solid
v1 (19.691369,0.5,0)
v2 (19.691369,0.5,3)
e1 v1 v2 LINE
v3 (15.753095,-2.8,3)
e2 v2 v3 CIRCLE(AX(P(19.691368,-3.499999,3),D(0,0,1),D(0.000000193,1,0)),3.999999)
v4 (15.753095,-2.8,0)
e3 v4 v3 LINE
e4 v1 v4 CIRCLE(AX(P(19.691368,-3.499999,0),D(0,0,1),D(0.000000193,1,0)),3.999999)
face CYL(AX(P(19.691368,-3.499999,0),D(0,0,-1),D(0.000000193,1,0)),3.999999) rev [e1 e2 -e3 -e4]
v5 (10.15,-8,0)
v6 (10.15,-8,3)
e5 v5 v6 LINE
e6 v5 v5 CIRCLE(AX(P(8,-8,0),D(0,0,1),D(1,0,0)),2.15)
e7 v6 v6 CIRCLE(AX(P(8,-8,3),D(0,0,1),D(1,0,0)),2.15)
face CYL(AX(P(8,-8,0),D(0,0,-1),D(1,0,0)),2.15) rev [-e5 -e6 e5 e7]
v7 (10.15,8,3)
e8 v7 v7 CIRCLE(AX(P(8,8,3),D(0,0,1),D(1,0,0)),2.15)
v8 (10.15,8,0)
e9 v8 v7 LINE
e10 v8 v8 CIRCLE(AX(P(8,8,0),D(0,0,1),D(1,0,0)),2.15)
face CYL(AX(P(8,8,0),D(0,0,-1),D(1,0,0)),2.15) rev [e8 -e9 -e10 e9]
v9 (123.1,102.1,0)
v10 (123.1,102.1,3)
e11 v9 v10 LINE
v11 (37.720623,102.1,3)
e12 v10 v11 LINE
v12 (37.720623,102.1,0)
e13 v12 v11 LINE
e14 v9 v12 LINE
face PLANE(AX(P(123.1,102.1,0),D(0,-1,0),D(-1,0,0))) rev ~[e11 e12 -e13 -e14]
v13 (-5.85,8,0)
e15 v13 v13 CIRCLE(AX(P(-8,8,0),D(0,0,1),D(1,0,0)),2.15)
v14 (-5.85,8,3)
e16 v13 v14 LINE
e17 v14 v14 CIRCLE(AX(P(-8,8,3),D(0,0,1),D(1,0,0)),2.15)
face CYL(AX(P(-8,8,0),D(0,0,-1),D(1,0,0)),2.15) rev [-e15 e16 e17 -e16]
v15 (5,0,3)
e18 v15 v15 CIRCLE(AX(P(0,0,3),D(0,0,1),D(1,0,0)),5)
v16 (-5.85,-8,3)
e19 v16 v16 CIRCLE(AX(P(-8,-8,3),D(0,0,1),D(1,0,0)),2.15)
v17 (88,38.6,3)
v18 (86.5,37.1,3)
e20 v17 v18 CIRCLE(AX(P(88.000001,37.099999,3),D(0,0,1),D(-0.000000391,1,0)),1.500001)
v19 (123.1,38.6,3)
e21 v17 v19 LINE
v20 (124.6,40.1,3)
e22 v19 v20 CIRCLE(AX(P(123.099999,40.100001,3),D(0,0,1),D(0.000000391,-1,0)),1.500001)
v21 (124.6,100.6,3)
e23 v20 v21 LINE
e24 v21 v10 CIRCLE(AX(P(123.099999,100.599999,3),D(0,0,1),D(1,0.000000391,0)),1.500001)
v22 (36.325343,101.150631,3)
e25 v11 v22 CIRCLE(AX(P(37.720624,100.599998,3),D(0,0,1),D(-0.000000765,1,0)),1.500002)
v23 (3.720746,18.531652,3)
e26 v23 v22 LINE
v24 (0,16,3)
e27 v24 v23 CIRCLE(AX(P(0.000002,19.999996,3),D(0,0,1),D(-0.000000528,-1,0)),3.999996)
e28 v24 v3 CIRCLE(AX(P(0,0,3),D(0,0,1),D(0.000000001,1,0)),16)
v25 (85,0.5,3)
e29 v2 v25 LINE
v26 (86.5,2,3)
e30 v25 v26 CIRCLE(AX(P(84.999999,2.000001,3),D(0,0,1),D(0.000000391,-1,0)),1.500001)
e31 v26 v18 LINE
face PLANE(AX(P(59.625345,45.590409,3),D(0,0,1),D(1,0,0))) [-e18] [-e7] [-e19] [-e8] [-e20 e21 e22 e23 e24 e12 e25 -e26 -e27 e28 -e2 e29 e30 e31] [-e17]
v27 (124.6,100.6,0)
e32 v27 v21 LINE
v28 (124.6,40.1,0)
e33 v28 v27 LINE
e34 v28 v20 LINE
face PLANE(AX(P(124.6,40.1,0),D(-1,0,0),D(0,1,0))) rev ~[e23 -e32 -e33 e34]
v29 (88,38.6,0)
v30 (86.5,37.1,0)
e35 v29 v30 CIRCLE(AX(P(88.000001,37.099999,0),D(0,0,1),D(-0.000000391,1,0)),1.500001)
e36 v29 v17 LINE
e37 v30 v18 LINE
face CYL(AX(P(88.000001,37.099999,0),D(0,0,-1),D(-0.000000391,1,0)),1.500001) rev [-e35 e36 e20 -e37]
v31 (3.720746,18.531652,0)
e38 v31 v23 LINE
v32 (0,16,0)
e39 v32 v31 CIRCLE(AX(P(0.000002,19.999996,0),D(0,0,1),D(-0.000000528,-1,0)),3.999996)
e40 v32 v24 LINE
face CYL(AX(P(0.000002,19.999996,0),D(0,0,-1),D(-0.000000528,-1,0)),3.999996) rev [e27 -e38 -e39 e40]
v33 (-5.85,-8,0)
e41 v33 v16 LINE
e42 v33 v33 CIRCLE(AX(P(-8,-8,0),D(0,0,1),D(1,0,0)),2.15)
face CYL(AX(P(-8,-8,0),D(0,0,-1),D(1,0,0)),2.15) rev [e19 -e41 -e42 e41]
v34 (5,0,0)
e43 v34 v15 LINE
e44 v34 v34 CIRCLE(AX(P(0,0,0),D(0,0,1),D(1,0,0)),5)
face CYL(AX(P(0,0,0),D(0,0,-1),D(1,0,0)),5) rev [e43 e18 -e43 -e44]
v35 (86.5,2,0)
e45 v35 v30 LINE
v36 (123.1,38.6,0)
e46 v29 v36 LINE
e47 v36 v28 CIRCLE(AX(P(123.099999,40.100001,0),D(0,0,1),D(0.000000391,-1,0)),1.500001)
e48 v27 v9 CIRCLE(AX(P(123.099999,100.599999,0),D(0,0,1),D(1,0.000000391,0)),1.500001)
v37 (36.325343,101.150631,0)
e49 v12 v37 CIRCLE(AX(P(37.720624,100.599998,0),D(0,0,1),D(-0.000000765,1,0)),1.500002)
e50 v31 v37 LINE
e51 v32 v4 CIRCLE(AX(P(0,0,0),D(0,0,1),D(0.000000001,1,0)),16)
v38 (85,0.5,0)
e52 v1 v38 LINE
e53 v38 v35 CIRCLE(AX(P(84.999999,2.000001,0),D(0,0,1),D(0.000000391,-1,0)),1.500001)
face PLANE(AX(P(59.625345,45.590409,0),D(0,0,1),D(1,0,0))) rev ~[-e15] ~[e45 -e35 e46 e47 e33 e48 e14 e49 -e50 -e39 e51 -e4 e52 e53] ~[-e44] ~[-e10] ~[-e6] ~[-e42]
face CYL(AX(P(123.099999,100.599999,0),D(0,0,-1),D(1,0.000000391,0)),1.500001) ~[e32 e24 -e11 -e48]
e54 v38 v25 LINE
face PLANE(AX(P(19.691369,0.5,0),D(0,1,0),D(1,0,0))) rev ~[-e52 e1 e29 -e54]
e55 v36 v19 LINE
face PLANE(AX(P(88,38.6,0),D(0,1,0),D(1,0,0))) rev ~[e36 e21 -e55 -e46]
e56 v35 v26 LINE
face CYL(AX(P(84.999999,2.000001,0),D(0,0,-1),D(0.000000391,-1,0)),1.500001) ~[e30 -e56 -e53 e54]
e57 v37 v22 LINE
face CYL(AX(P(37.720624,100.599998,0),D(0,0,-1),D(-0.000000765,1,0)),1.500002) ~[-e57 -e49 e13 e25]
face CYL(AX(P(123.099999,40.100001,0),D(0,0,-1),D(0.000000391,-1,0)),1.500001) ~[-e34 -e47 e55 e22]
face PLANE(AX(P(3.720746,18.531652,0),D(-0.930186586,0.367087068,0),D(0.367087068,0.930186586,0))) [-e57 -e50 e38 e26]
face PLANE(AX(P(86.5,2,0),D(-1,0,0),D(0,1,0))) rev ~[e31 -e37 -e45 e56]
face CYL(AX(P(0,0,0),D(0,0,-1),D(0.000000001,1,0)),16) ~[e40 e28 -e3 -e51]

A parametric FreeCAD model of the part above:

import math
import FreeCAD as App
import Part
import Sketcher

V = App.Vector
Q = App.Units.Quantity

doc = App.newDocument("Part")
body = doc.addObject("PartDesign::Body", "Body")

# Sketch on XY plane
sketch1 = body.newObject("Sketcher::SketchObject", "Sketch")
sketch1.AttachmentSupport = (doc.getObject("XY_Plane"), [""])
sketch1.MapMode = "FlatFace"
sketch1.addGeometry([
    Part.ArcOfCircle(Part.Circle(V(84.999999, 2.000001, 0), V(0, 0, 1), 1.500001), math.radians(-89.999978), math.radians(-0.000022)),  # 0
    Part.LineSegment(V(86.5, 2, 0), V(86.5, 37.1, 0)),  # 1
    Part.ArcOfCircle(Part.Circle(V(88.000001, 37.099999, 0), V(0, 0, 1), 1.500001), math.radians(90.000022), math.radians(179.999978)),  # 2
    Part.LineSegment(V(88, 38.6, 0), V(123.1, 38.6, 0)),  # 3
    Part.ArcOfCircle(Part.Circle(V(123.099999, 40.100001, 0), V(0, 0, 1), 1.500001), math.radians(-89.999978), math.radians(-0.000022)),  # 4
    Part.LineSegment(V(124.6, 40.1, 0), V(124.6, 100.6, 0)),  # 5
    Part.ArcOfCircle(Part.Circle(V(123.099999, 100.599999, 0), V(0, 0, 1), 1.500001), math.radians(0.000022), math.radians(89.999978)),  # 6
    Part.LineSegment(V(123.1, 102.1, 0), V(37.720623, 102.1, 0)),  # 7
    Part.ArcOfCircle(Part.Circle(V(37.720624, 100.599998, 0), V(0, 0, 1), 1.500002), math.radians(90.000044), math.radians(158.463848)),  # 8
    Part.LineSegment(V(36.325343, 101.150631, 0), V(3.720746, 18.531652, 0)),  # 9
    Part.ArcOfCircle(Part.Circle(V(0.000002, 19.999996, 0), V(0, 0, 1), 3.999996), math.radians(-90.00003), math.radians(-21.53604)),  # 10
    Part.ArcOfCircle(Part.Circle(V(0, 0, 0), V(0, 0, 1), 16), math.radians(90), math.radians(349.921342)),  # 11
    Part.ArcOfCircle(Part.Circle(V(19.691368, -3.499999, 0), V(0, 0, 1), 3.999999), math.radians(89.999989), math.radians(169.921349)),  # 12
    Part.LineSegment(V(19.691369, 0.5, 0), V(85, 0.5, 0)),  # 13
    Part.Circle(V(-8, -8, 0), V(0, 0, 1), 2.15),  # 14
    Part.Circle(V(8, -8, 0), V(0, 0, 1), 2.15),  # 15
    Part.Circle(V(-8, 8, 0), V(0, 0, 1), 2.15),  # 16
    Part.Circle(V(0, 0, 0), V(0, 0, 1), 5),  # 17
    Part.Circle(V(8, 8, 0), V(0, 0, 1), 2.15),  # 18
], False)
sketch1.addConstraint([
    Sketcher.Constraint("Tangent", 0, 2, 1, 1),
    Sketcher.Constraint("Tangent", 1, 2, 2, 2),
    Sketcher.Constraint("Tangent", 2, 1, 3, 1),
    Sketcher.Constraint("Tangent", 3, 2, 4, 1),
    Sketcher.Constraint("Tangent", 4, 2, 5, 1),
    Sketcher.Constraint("Tangent", 5, 2, 6, 1),
    Sketcher.Constraint("Tangent", 6, 2, 7, 1),
    Sketcher.Constraint("Tangent", 7, 2, 8, 1),
    Sketcher.Constraint("Tangent", 8, 2, 9, 1),
    Sketcher.Constraint("Tangent", 9, 2, 10, 2),
    Sketcher.Constraint("Tangent", 10, 1, 11, 1),
    Sketcher.Constraint("Tangent", 11, 2, 12, 2),
    Sketcher.Constraint("Tangent", 12, 1, 13, 1),
    Sketcher.Constraint("Tangent", 13, 2, 0, 1),
    Sketcher.Constraint("Vertical", 1),
    Sketcher.Constraint("Horizontal", 3),
    Sketcher.Constraint("Vertical", 5),
    Sketcher.Constraint("Horizontal", 7),
    Sketcher.Constraint("Horizontal", 13),
    Sketcher.Constraint("Coincident", 11, 3, -1, 1),
    Sketcher.Constraint("Coincident", 17, 3, -1, 1),
    Sketcher.Constraint("Equal", 0, 2),
    Sketcher.Constraint("Equal", 2, 4),
    Sketcher.Constraint("Equal", 4, 6),
    Sketcher.Constraint("Equal", 6, 8),
    Sketcher.Constraint("Equal", 14, 15),
    Sketcher.Constraint("Equal", 15, 16),
    Sketcher.Constraint("Equal", 16, 18),
    Sketcher.Constraint("Symmetric", 15, 3, 16, 3, -1, 1),
    Sketcher.Constraint("Symmetric", 14, 3, 18, 3, -1, 1),
    Sketcher.Constraint("Symmetric", 14, 3, 15, 3, -2),
    Sketcher.Constraint("PointOnObject", 10, 1, -2),
    Sketcher.Constraint("Equal", 3, 1),
    Sketcher.Constraint("Diameter", 17, Q("10 mm")),
    Sketcher.Constraint("Radius", 11, Q("16 mm")),
    Sketcher.Constraint("Radius", 12, Q("3.999999 mm")),
    Sketcher.Constraint("Diameter", 14, Q("4.3 mm")),
    Sketcher.Constraint("Radius", 0, Q("1.500001 mm")),
    Sketcher.Constraint("DistanceX", 3, 1, 3, 2, Q("35.1 mm")),
    Sketcher.Constraint("DistanceY", 5, 1, 5, 2, Q("60.5 mm")),
    Sketcher.Constraint("DistanceX", -1, 1, 0, 3, Q("84.999999 mm")),
    Sketcher.Constraint("DistanceY", -1, 1, 0, 3, Q("2.000001 mm")),
    Sketcher.Constraint("DistanceX", 14, 3, -1, 1, Q("8 mm")),
    Sketcher.Constraint("DistanceY", 14, 3, -1, 1, Q("8 mm")),
    Sketcher.Constraint("DistanceY", 10, 3, 8, 3, Q("80.600002 mm")),
    Sketcher.Constraint("Distance", 9, Q("88.819792 mm")),
])
pad1 = body.newObject("PartDesign::Pad", "Pad")
pad1.Profile = sketch1
pad1.Length = 3

doc.recompute()
